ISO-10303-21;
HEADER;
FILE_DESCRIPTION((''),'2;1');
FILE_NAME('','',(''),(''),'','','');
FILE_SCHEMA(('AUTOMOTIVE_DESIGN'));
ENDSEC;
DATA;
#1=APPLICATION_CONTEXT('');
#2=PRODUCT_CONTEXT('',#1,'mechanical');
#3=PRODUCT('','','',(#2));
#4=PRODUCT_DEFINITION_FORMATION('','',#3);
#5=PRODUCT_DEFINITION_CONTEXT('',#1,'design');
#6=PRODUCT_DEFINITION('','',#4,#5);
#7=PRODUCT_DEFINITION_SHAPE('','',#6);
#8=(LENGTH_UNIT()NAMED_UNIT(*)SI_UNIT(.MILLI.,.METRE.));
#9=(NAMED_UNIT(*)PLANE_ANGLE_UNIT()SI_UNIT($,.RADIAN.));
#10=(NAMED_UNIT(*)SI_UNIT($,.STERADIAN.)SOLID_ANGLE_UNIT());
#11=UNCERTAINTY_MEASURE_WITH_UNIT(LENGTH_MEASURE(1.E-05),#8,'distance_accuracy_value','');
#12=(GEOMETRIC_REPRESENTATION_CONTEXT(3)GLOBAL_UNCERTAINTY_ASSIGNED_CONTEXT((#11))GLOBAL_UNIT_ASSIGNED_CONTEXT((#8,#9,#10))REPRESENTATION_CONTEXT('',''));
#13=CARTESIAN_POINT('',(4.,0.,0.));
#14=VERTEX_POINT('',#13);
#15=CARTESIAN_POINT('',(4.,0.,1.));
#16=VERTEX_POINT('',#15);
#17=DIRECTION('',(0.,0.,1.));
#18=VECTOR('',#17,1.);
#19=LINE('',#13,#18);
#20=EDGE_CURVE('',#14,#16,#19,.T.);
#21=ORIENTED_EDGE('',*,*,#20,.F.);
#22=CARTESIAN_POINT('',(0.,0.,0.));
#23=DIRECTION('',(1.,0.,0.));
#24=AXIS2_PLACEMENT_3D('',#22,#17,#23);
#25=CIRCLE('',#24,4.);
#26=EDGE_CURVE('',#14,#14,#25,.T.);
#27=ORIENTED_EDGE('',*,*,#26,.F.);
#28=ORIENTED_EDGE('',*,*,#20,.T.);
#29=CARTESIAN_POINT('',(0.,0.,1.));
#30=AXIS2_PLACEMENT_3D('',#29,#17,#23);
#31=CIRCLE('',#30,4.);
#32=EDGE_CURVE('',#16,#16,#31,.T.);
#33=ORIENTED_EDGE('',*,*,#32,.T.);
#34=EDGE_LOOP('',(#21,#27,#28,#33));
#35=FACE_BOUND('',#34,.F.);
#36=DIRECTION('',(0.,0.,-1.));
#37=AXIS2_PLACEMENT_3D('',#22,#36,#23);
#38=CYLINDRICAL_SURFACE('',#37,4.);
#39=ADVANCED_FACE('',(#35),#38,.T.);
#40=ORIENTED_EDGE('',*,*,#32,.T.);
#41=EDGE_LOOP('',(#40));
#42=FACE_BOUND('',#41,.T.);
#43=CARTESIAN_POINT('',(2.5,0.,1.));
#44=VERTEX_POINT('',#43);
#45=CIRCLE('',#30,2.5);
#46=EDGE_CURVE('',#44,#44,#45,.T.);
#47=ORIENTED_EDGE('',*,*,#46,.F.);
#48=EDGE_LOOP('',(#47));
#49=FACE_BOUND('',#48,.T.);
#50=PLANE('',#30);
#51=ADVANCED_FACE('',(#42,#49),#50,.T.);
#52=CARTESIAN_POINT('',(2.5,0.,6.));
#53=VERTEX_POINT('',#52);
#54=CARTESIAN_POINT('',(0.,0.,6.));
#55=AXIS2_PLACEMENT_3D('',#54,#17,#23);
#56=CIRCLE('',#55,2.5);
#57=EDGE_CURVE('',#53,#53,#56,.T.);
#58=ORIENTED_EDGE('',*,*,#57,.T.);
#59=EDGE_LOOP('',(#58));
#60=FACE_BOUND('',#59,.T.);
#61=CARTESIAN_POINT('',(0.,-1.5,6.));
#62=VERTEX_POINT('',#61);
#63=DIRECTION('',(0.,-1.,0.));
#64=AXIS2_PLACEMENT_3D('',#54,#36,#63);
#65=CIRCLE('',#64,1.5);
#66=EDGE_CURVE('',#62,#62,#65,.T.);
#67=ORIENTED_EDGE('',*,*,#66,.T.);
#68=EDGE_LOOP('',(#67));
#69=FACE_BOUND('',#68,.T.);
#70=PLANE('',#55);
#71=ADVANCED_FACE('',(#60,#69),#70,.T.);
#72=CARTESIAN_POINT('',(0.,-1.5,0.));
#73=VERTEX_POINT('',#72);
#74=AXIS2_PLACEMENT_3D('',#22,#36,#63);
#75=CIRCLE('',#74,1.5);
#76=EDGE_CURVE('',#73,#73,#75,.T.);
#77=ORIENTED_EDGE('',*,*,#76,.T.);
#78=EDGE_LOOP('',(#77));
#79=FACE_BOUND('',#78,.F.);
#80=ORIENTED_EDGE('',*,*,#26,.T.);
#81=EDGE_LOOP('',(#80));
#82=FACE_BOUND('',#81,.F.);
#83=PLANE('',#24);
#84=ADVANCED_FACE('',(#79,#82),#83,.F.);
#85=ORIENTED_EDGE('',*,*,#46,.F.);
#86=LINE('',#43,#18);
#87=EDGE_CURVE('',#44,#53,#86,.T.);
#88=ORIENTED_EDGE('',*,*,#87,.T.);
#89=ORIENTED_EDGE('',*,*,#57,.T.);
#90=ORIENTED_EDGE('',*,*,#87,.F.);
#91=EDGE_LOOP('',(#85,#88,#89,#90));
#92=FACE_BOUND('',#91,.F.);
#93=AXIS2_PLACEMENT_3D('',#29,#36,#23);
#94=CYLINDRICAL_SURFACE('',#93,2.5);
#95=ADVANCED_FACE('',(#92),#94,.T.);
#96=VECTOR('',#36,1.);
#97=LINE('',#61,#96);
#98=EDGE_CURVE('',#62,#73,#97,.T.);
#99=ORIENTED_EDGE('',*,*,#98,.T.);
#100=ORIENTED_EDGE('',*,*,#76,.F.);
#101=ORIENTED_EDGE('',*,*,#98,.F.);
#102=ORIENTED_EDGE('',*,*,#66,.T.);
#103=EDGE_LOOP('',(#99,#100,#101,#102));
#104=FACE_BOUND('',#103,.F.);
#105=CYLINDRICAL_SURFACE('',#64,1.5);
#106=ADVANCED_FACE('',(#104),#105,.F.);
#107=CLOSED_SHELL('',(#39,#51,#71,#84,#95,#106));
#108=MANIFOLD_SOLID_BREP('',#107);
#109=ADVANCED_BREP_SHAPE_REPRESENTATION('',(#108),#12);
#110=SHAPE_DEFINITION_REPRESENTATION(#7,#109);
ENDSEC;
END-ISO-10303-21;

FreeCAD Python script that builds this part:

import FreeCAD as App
import Part
import Sketcher

V = App.Vector

doc = App.newDocument("Part")
params = doc.addObject("Spreadsheet::Sheet", "Params")
for row, (alias, value) in enumerate([
    ("sketch1_diameter", "8 mm"),
    ("pad1_length", "1 mm"),
    ("sketch2_diameter", "5 mm"),
    ("pad2_length", "5 mm"),
    ("sketch3_diameter", "3 mm"),
    ("hole_diameter", "3 mm"),
], start=1):
    params.set(f"A{row}", alias)
    params.set(f"B{row}", "=" + value)
    params.setAlias(f"B{row}", alias)

body = doc.addObject("PartDesign::Body", "Body")

# Sketch on XY plane
sketch1 = body.newObject("Sketcher::SketchObject", "Sketch")
sketch1.AttachmentSupport = (doc.getObject("XY_Plane"), [""])
sketch1.MapMode = "FlatFace"
sketch1.addGeometry(Part.Circle(V(0, 0, 0), V(0, 0, 1), 4), False)
sketch1.addConstraint(Sketcher.Constraint("Coincident", 0, 3, -1, 1))
sketch1.addConstraint(Sketcher.Constraint("Diameter", 0, 8.0))
sketch1.setExpression("Constraints[1]", "Params.sketch1_diameter")
pad1 = body.newObject("PartDesign::Pad", "Pad")
pad1.Profile = sketch1
pad1.setExpression("Length", "Params.pad1_length")

# Sketch on XY plane
sketch2 = body.newObject("Sketcher::SketchObject", "Sketch001")
sketch2.AttachmentSupport = (doc.getObject("XY_Plane"), [""])
sketch2.MapMode = "FlatFace"
sketch2.AttachmentOffset = App.Placement(V(0, 0, 1), App.Rotation())
sketch2.addGeometry(Part.Circle(V(0, 0, 0), V(0, 0, 1), 2.5), False)
sketch2.addConstraint(Sketcher.Constraint("Coincident", 0, 3, -1, 1))
sketch2.addConstraint(Sketcher.Constraint("Diameter", 0, 5.0))
sketch2.setExpression("Constraints[1]", "Params.sketch2_diameter")
pad2 = body.newObject("PartDesign::Pad", "Pad001")
pad2.Profile = sketch2
pad2.setExpression("Length", "Params.pad2_length")

# Sketch on XY plane
sketch3 = body.newObject("Sketcher::SketchObject", "Sketch002")
sketch3.AttachmentSupport = (doc.getObject("XY_Plane"), [""])
sketch3.MapMode = "FlatFace"
sketch3.AttachmentOffset = App.Placement(V(0, 0, 6), App.Rotation())
sketch3.addGeometry(Part.Circle(V(0, 0, 0), V(0, 0, 1), 1.5), False)
sketch3.addConstraint(Sketcher.Constraint("Coincident", 0, 3, -1, 1))
sketch3.addConstraint(Sketcher.Constraint("Diameter", 0, 3.0))
sketch3.setExpression("Constraints[1]", "Params.sketch3_diameter")
doc.recompute()
hole = body.newObject("PartDesign::Hole", "Hole")
hole.Profile = sketch3
hole.ThreadType = "None"
hole.setExpression("Diameter", "Params.hole_diameter")
hole.DepthType = "ThroughAll"

doc.recompute()
